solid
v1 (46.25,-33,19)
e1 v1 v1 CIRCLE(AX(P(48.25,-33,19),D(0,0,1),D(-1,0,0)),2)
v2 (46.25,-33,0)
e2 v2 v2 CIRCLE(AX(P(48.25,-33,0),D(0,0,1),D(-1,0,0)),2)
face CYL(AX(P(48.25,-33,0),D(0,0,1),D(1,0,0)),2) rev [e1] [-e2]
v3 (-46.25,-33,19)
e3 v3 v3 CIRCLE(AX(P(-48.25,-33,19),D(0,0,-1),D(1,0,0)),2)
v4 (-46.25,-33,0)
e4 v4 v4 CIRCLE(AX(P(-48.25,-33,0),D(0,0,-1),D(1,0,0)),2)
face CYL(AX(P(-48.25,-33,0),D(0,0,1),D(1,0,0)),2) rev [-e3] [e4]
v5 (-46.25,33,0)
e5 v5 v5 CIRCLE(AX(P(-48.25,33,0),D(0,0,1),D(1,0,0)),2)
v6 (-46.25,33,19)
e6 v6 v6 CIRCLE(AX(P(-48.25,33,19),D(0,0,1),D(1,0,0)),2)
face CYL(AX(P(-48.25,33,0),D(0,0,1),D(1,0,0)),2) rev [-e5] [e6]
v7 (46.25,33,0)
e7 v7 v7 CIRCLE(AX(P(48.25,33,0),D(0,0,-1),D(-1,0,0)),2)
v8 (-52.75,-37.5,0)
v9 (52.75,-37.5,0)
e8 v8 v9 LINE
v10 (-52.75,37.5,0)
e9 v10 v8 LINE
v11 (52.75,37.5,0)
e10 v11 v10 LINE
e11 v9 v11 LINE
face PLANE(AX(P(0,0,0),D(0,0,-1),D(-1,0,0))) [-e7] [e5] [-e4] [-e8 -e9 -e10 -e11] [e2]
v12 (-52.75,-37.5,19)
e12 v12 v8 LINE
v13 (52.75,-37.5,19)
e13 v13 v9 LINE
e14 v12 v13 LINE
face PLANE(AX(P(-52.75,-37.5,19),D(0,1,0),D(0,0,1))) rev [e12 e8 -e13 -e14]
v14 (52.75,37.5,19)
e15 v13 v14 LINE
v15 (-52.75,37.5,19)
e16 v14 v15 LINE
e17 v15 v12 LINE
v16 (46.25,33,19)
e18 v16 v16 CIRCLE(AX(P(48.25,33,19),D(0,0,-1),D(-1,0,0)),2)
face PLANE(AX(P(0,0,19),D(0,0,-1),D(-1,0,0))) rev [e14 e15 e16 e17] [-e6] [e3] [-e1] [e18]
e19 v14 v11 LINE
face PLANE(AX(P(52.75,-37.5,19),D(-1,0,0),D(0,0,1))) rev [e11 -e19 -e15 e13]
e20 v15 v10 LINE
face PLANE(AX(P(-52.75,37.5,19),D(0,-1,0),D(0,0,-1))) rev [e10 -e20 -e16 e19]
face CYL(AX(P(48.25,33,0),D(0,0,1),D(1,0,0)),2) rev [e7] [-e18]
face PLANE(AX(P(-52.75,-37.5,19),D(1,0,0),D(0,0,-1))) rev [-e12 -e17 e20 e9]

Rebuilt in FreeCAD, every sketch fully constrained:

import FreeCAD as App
import Part
import Sketcher
from FreeCAD import Vector
Q = App.Units.Quantity

doc = App.newDocument("Part")
body = doc.addObject("PartDesign::Body", "Body")

sketch1 = body.newObject("Sketcher::SketchObject", "Sketch")
sketch1.AttachmentSupport = (doc.getObject("XY_Plane"), [""])
sketch1.MapMode = "FlatFace"
sketch1.addGeometry([
    Part.LineSegment(Vector(-53, 38, 0), Vector(-53, -38, 0)),
    Part.LineSegment(Vector(-53, -38, 0), Vector(53, -38, 0)),
    Part.LineSegment(Vector(53, -38, 0), Vector(53, 38, 0)),
    Part.LineSegment(Vector(53, 38, 0), Vector(-53, 38, 0)),
], False)
sketch1.addConstraint([
    Sketcher.Constraint("Coincident", 0, 2, 1, 1),
    Sketcher.Constraint("Coincident", 1, 2, 2, 1),
    Sketcher.Constraint("Coincident", 2, 2, 3, 1),
    Sketcher.Constraint("Coincident", 3, 2, 0, 1),
    Sketcher.Constraint("Vertical", 0),
    Sketcher.Constraint("Horizontal", 1),
    Sketcher.Constraint("Vertical", 2),
    Sketcher.Constraint("Horizontal", 3),
    Sketcher.Constraint("Symmetric", 0, 2, 2, 2, -1, 1),
    Sketcher.Constraint("DistanceY", 0, 2, 0, 1, Q("75 mm")),
    Sketcher.Constraint("DistanceX", 1, 1, 1, 2, Q("105.5 mm")),
])
pad1 = body.newObject("PartDesign::Pad", "Pad")
pad1.Profile = sketch1
pad1.Length = 19

sketch2 = body.newObject("Sketcher::SketchObject", "Sketch001")
sketch2.AttachmentSupport = (doc.getObject("XY_Plane"), [""])
sketch2.MapMode = "FlatFace"
sketch2.AttachmentOffset = App.Placement(Vector(0, 0, 19), App.Rotation())
sketch2.addGeometry(Part.Circle(Vector(-48.2, 33, 0), Vector(0, 0, 1), 2), False)
sketch2.addConstraint([
    Sketcher.Constraint("Diameter", 0, Q("4 mm")),
    Sketcher.Constraint("DistanceY", -1, 1, 0, 3, Q("33 mm")),
    Sketcher.Constraint("DistanceX", 0, 3, -1, 1, Q("48.25 mm")),
])
pocket1 = body.newObject("PartDesign::Pocket", "Pocket")
pocket1.Profile = sketch2
pocket1.Type = "ThroughAll"
doc.recompute()

mirrored = body.newObject("PartDesign::Mirrored", "Mirrored")
mirrored.Originals = [pocket1]
mirrored.MirrorPlane = (doc.getObject("XZ_Plane"), [""])
body.Tip = mirrored
doc.recompute()

mirrored2 = body.newObject("PartDesign::Mirrored", "Mirrored001")
mirrored2.Originals = [pocket1]
mirrored2.MirrorPlane = (doc.getObject("YZ_Plane"), [""])
body.Tip = mirrored2

sketch3 = body.newObject("Sketcher::SketchObject", "Sketch002")
sketch3.AttachmentSupport = (doc.getObject("XY_Plane"), [""])
sketch3.MapMode = "FlatFace"
sketch3.AttachmentOffset = App.Placement(Vector(0, 0, 19), App.Rotation())
sketch3.addGeometry(Part.Circle(Vector(48.2, -33, 0), Vector(0, 0, 1), 2), False)
sketch3.addConstraint([
    Sketcher.Constraint("Diameter", 0, Q("4 mm")),
    Sketcher.Constraint("DistanceY", 0, 3, -1, 1, Q("33 mm")),
    Sketcher.Constraint("DistanceX", -1, 1, 0, 3, Q("48.25 mm")),
])
pocket2 = body.newObject("PartDesign::Pocket", "Pocket001")
pocket2.Profile = sketch3
pocket2.Type = "ThroughAll"

doc.recompute()
